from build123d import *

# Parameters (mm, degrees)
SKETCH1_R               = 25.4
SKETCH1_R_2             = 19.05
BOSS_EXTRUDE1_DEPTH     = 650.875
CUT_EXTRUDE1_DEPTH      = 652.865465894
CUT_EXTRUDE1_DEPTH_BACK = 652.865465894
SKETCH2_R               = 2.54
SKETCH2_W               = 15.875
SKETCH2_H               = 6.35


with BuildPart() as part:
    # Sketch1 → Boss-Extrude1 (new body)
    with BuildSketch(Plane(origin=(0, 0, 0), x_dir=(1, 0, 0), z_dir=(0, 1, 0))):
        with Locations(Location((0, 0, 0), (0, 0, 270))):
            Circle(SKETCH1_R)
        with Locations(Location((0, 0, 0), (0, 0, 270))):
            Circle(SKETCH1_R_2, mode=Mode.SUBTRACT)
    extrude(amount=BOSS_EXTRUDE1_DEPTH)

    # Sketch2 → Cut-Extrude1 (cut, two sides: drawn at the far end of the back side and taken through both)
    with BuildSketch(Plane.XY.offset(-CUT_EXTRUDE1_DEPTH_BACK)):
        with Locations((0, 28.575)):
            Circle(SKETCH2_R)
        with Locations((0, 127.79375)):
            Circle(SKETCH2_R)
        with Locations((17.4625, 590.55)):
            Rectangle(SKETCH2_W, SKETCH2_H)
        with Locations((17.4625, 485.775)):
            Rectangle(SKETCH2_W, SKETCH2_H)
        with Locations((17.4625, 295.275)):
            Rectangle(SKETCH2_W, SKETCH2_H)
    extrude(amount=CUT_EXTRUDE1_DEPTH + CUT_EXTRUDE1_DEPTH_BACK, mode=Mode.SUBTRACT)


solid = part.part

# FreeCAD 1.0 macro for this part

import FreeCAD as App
import Part
import Sketcher
Q = App.Units.Quantity

doc = App.newDocument("Part")
params = doc.addObject("Spreadsheet::Sheet", "Params")
for row, (alias, value) in enumerate([
    ("sketch1_diameter", "2 in"),
    ("sketch1_diameter2", "1.5 in"),
    ("pad1_length", "25.625 in"),
    ("sketch2_diameter", "0.2 in"),
    ("sketch2_height", "0.25 in"),
    ("sketch2_width", "0.625 in"),
], start=1):
    params.set(f"A{row}", alias)
    params.set(f"B{row}", "=" + value)
    params.setAlias(f"B{row}", alias)

body = doc.addObject("PartDesign::Body", "Body")

# Sketch on XZ plane
sketch1 = doc.addObject("Sketcher::SketchObject", "Sketch")
body.addObject(sketch1)
sketch1.AttachmentSupport = (doc.XZ_Plane, [""])
sketch1.MapMode = "FlatFace"
sketch1.addGeometry([
    Part.Circle(App.Vector(0, 0, 0), App.Vector(0, 0, 1), 25.4),
    Part.Circle(App.Vector(0, 0, 0), App.Vector(0, 0, 1), 19.05),
], False)
sketch1.addConstraint([
    Sketcher.Constraint("Coincident", 0, 3, -1, 1),
    Sketcher.Constraint("Coincident", 1, 3, -1, 1),
    Sketcher.Constraint("Diameter", 0, Q("2 in")),
    Sketcher.Constraint("Diameter", 1, Q("1.5 in")),
])
sketch1.setExpression("Constraints[2]", "Params.sketch1_diameter")
sketch1.setExpression("Constraints[3]", "Params.sketch1_diameter2")
pad1 = doc.addObject("PartDesign::Pad", "Pad")
body.addObject(pad1)
pad1.Profile = sketch1
pad1.setExpression("Length", "Params.pad1_length")
pad1.Reversed = True

# Sketch on XY plane
sketch2 = doc.addObject("Sketcher::SketchObject", "Sketch001")
body.addObject(sketch2)
sketch2.AttachmentSupport = (doc.XY_Plane, [""])
sketch2.MapMode = "FlatFace"
sketch2.addGeometry([
    Part.Circle(App.Vector(0, 28.575, 0), App.Vector(0, 0, 1), 2.54),  # 0
    Part.Circle(App.Vector(0, 127.79375, 0), App.Vector(0, 0, 1), 2.54),  # 1
    Part.LineSegment(App.Vector(9.525, 593.725, 0), App.Vector(9.525, 587.375, 0)),  # 2
    Part.LineSegment(App.Vector(9.525, 587.375, 0), App.Vector(25.4, 587.375, 0)),  # 3
    Part.LineSegment(App.Vector(25.4, 587.375, 0), App.Vector(25.4, 593.725, 0)),  # 4
    Part.LineSegment(App.Vector(25.4, 593.725, 0), App.Vector(9.525, 593.725, 0)),  # 5
    Part.LineSegment(App.Vector(9.525, 488.95, 0), App.Vector(9.525, 482.6, 0)),  # 6
    Part.LineSegment(App.Vector(9.525, 482.6, 0), App.Vector(25.4, 482.6, 0)),  # 7
    Part.LineSegment(App.Vector(25.4, 482.6, 0), App.Vector(25.4, 488.95, 0)),  # 8
    Part.LineSegment(App.Vector(25.4, 488.95, 0), App.Vector(9.525, 488.95, 0)),  # 9
    Part.LineSegment(App.Vector(9.525, 298.45, 0), App.Vector(9.525, 292.1, 0)),  # 10
    Part.LineSegment(App.Vector(9.525, 292.1, 0), App.Vector(25.4, 292.1, 0)),  # 11
    Part.LineSegment(App.Vector(25.4, 292.1, 0), App.Vector(25.4, 298.45, 0)),  # 12
    Part.LineSegment(App.Vector(25.4, 298.45, 0), App.Vector(9.525, 298.45, 0)),  # 13
], False)
sketch2.addConstraint([
    Sketcher.Constraint("Coincident", 2, 2, 3, 1),
    Sketcher.Constraint("Coincident", 3, 2, 4, 1),
    Sketcher.Constraint("Coincident", 4, 2, 5, 1),
    Sketcher.Constraint("Coincident", 5, 2, 2, 1),
    Sketcher.Constraint("Coincident", 6, 2, 7, 1),
    Sketcher.Constraint("Coincident", 7, 2, 8, 1),
    Sketcher.Constraint("Coincident", 8, 2, 9, 1),
    Sketcher.Constraint("Coincident", 9, 2, 6, 1),
    Sketcher.Constraint("Coincident", 10, 2, 11, 1),
    Sketcher.Constraint("Coincident", 11, 2, 12, 1),
    Sketcher.Constraint("Coincident", 12, 2, 13, 1),
    Sketcher.Constraint("Coincident", 13, 2, 10, 1),
    Sketcher.Constraint("Vertical", 2),
    Sketcher.Constraint("Horizontal", 3),
    Sketcher.Constraint("Vertical", 4),
    Sketcher.Constraint("Horizontal", 5),
    Sketcher.Constraint("Vertical", 6),
    Sketcher.Constraint("Horizontal", 7),
    Sketcher.Constraint("Vertical", 8),
    Sketcher.Constraint("Horizontal", 9),
    Sketcher.Constraint("Vertical", 10),
    Sketcher.Constraint("Horizontal", 11),
    Sketcher.Constraint("Vertical", 12),
    Sketcher.Constraint("Horizontal", 13),
    Sketcher.Constraint("Equal", 0, 1),
    Sketcher.Constraint("PointOnObject", 0, 3, -2),
    Sketcher.Constraint("PointOnObject", 1, 3, -2),
    Sketcher.Constraint("Vertical", 5, 2, 6, 2),
    Sketcher.Constraint("Vertical", 4, 2, 7, 2),
    Sketcher.Constraint("Vertical", 9, 2, 10, 2),
    Sketcher.Constraint("Vertical", 8, 2, 11, 2),
    Sketcher.Constraint("Equal", 4, 6),
    Sketcher.Constraint("Equal", 8, 10),
    Sketcher.Constraint("Diameter", 0, Q("0.2 in")),
    Sketcher.Constraint("DistanceX", -1, 1, 3, 2, Q("1 in")),
    Sketcher.Constraint("DistanceY", -1, 1, 6, 2, Q("19 in")),
    Sketcher.Constraint("DistanceY", 0, 3, 2, 2, Q("22 in")),
    Sketcher.Constraint("DistanceY", 2, 2, 2, 1, Q("0.25 in")),
    Sketcher.Constraint("DistanceY", -1, 1, 10, 2, Q("11.5 in")),
    Sketcher.Constraint("DistanceX", 3, 1, 3, 2, Q("0.625 in")),
    Sketcher.Constraint("DistanceY", -1, 1, 0, 3, Q("1.125 in")),
    Sketcher.Constraint("DistanceY", -1, 1, 1, 3, Q("5.03125 in")),
])
sketch2.setExpression("Constraints[33]", "Params.sketch2_diameter")
sketch2.setExpression("Constraints[37]", "Params.sketch2_height")
sketch2.setExpression("Constraints[39]", "Params.sketch2_width")
pocket1 = doc.addObject("PartDesign::Pocket", "Pocket")
body.addObject(pocket1)
pocket1.Profile = sketch2
pocket1.Type = "ThroughAll"
pocket1.Midplane = True

doc.recompute()
